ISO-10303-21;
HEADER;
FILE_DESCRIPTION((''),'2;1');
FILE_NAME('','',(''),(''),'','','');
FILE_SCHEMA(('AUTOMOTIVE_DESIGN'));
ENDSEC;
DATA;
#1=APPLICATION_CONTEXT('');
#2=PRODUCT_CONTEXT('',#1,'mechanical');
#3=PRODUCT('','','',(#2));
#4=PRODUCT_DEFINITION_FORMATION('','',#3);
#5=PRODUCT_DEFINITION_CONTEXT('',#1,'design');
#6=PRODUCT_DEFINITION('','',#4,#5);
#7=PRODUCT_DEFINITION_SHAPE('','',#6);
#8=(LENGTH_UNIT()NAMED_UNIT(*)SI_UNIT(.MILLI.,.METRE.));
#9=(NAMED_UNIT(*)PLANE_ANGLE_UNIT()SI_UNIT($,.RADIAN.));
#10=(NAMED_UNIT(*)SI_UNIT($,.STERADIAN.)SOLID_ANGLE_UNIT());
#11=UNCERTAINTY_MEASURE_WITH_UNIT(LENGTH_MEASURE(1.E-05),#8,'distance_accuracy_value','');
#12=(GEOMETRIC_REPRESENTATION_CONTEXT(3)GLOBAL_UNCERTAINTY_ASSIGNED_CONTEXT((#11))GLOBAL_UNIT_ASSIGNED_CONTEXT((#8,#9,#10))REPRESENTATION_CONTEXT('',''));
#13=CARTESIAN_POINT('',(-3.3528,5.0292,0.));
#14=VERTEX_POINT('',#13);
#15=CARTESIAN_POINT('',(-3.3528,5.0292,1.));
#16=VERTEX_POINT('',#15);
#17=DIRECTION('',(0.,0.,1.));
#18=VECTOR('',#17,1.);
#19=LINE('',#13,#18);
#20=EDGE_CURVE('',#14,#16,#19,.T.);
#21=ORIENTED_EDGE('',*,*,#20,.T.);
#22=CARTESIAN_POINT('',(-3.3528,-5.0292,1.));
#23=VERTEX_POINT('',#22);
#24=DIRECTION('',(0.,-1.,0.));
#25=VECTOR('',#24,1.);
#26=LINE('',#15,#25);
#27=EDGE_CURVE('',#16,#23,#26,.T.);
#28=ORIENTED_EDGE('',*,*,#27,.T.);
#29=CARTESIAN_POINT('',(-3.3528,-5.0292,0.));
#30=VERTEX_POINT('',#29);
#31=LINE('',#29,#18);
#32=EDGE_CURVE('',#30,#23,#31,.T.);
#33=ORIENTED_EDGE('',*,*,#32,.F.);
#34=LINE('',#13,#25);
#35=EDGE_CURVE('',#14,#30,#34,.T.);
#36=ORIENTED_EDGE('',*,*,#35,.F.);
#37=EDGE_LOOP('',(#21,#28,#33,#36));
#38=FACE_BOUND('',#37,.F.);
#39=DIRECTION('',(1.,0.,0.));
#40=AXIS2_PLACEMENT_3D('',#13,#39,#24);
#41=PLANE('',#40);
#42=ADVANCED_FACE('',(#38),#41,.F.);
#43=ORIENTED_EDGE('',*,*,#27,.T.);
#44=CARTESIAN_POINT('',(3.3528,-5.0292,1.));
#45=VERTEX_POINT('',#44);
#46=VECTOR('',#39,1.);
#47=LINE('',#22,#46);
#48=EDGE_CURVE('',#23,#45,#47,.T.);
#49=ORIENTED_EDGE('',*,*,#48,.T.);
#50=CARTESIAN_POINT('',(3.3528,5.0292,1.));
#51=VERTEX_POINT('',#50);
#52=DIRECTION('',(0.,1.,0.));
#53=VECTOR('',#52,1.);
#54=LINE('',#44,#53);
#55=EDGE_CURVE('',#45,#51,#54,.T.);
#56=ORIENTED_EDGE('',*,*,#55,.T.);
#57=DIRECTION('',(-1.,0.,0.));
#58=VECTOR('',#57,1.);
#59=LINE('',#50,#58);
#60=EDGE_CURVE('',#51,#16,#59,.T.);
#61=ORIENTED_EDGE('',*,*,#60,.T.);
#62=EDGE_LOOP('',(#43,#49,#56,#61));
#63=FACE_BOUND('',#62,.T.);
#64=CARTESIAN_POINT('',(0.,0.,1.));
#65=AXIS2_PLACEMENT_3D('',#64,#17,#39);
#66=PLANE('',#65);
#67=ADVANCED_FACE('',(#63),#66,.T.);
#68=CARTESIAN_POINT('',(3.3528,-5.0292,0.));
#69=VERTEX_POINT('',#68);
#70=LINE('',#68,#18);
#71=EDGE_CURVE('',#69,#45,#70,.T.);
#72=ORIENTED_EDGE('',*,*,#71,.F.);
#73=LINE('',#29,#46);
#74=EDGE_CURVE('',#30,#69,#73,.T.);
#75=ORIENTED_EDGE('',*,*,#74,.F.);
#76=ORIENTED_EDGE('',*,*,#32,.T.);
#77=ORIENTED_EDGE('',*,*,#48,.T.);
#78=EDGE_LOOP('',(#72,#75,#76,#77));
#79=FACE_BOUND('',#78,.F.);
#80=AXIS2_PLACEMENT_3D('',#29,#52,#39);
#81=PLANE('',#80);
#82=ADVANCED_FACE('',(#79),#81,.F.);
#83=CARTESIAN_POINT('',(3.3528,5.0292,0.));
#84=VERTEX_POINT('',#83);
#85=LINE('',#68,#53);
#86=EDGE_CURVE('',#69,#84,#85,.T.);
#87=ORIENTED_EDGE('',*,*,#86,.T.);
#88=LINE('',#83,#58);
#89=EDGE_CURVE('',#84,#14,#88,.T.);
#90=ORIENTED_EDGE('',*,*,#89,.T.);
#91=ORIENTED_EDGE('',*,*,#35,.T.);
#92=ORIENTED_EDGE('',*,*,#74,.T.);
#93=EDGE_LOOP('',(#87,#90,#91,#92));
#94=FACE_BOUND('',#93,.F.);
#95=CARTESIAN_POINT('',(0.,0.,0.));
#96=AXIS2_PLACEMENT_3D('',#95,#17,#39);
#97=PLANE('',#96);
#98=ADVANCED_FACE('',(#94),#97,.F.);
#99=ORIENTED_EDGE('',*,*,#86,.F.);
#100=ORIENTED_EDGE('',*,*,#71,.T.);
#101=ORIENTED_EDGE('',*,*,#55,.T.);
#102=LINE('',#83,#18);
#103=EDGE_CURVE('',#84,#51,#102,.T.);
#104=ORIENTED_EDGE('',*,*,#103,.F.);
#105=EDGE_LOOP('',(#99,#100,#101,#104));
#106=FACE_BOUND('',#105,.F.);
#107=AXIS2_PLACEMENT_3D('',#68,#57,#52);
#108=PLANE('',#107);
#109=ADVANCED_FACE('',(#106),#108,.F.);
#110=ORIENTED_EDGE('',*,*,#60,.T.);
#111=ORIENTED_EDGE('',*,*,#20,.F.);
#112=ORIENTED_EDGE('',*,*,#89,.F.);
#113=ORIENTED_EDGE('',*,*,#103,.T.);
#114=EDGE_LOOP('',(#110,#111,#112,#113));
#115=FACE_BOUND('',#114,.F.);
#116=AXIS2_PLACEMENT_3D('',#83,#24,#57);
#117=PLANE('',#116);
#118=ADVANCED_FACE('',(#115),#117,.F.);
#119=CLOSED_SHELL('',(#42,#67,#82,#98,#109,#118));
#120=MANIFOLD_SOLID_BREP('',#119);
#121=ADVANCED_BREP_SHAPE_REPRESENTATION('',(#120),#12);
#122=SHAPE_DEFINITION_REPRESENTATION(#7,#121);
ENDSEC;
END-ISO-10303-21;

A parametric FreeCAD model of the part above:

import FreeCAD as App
import Part
import Sketcher

V = App.Vector
Q = App.Units.Quantity

doc = App.newDocument("Part")
body = doc.addObject("PartDesign::Body", "Body")

# Sketch on XY plane
sketch1 = body.newObject("Sketcher::SketchObject", "Sketch")
sketch1.AttachmentSupport = (doc.getObject("XY_Plane"), [""])
sketch1.MapMode = "FlatFace"
sketch1.addGeometry([
    Part.LineSegment(V(-3, 5, 0), V(-3, -5, 0)),
    Part.LineSegment(V(-3, -5, 0), V(3, -5, 0)),
    Part.LineSegment(V(3, -5, 0), V(3, 5, 0)),
    Part.LineSegment(V(3, 5, 0), V(-3, 5, 0)),
], False)
sketch1.addConstraint([
    Sketcher.Constraint("Coincident", 0, 2, 1, 1),
    Sketcher.Constraint("Coincident", 1, 2, 2, 1),
    Sketcher.Constraint("Coincident", 2, 2, 3, 1),
    Sketcher.Constraint("Coincident", 3, 2, 0, 1),
    Sketcher.Constraint("Vertical", 0),
    Sketcher.Constraint("Horizontal", 1),
    Sketcher.Constraint("Vertical", 2),
    Sketcher.Constraint("Horizontal", 3),
    Sketcher.Constraint("Symmetric", 0, 2, 2, 2, -1, 1),
    Sketcher.Constraint("DistanceX", 1, 1, 1, 2, Q("0.264 in")),
    Sketcher.Constraint("DistanceY", 0, 2, 0, 1, Q("0.396 in")),
])
pad1 = body.newObject("PartDesign::Pad", "Pad")
pad1.Profile = sketch1
pad1.Length = 1

doc.recompute()
